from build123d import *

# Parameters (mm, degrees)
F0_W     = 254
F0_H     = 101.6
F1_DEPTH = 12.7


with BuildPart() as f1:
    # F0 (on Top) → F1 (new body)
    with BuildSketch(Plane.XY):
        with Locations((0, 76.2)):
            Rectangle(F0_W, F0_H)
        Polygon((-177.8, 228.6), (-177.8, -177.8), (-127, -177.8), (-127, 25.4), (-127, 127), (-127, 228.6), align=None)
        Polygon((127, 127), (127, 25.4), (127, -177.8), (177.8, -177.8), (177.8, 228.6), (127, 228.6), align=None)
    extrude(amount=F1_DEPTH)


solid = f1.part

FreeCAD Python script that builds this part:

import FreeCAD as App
import Part
import Sketcher

V = App.Vector
Q = App.Units.Quantity


def add_polygon(sketch, points):
    """Adds a closed chain of lines whose ends are joined by coincident constraints."""
    first, n = sketch.GeometryCount, len(points)
    for a, b in zip(points, points[1:] + points[:1]):
        sketch.addGeometry(Part.LineSegment(App.Vector(*a, 0), App.Vector(*b, 0)), False)
    for i in range(n):
        sketch.addConstraint(Sketcher.Constraint("Coincident", first + i, 2, first + (i + 1) % n, 1))

doc = App.newDocument("Part")
body = doc.addObject("PartDesign::Body", "Body")

# Sketch on XY plane
sketch1 = doc.addObject("Sketcher::SketchObject", "Sketch")
body.addObject(sketch1)
sketch1.AttachmentSupport = (doc.XY_Plane, [""])
sketch1.MapMode = "FlatFace"
add_polygon(sketch1, [(-127, 25.4), (127, 25.4), (127, -177.8), (177.8, -177.8), (177.8, 228.6), (127, 228.6), (127, 127), (-127, 127), (-127, 228.6), (-177.8, 228.6), (-177.8, -177.8), (-127, -177.8)])  # lines 0-11
sketch1.addConstraint(Sketcher.Constraint("Horizontal", 0))
sketch1.addConstraint(Sketcher.Constraint("Vertical", 1))
sketch1.addConstraint(Sketcher.Constraint("Horizontal", 2))
sketch1.addConstraint(Sketcher.Constraint("Vertical", 3))
sketch1.addConstraint(Sketcher.Constraint("Horizontal", 4))
sketch1.addConstraint(Sketcher.Constraint("Vertical", 5))
sketch1.addConstraint(Sketcher.Constraint("Horizontal", 6))
sketch1.addConstraint(Sketcher.Constraint("Vertical", 7))
sketch1.addConstraint(Sketcher.Constraint("Horizontal", 8))
sketch1.addConstraint(Sketcher.Constraint("Vertical", 9))
sketch1.addConstraint(Sketcher.Constraint("Horizontal", 10))
sketch1.addConstraint(Sketcher.Constraint("Vertical", 11))
sketch1.addConstraint(Sketcher.Constraint("Symmetric", 4, 2, 7, 2, -2))
sketch1.addConstraint(Sketcher.Constraint("Symmetric", 2, 2, 9, 2, -2))
sketch1.addConstraint(Sketcher.Constraint("Vertical", 1, 2, 4, 2))
sketch1.addConstraint(Sketcher.Constraint("Vertical", 7, 2, 10, 2))
sketch1.addConstraint(Sketcher.Constraint("DistanceX", 0, 1, 0, 2, Q("10 in")))
sketch1.addConstraint(Sketcher.Constraint("DistanceX", 2, 1, 2, 2, Q("2 in")))
sketch1.addConstraint(Sketcher.Constraint("DistanceY", 1, 2, 1, 1, Q("8 in")))
sketch1.addConstraint(Sketcher.Constraint("DistanceY", 3, 1, 3, 2, Q("16 in")))
sketch1.addConstraint(Sketcher.Constraint("DistanceY", 5, 2, 5, 1, Q("4 in")))
sketch1.addConstraint(Sketcher.Constraint("DistanceY", -1, 1, 0, 2, Q("1 in")))
pad1 = doc.addObject("PartDesign::Pad", "Pad")
body.addObject(pad1)
pad1.Profile = sketch1
pad1.Length = Q("0.5 in")

doc.recompute()
